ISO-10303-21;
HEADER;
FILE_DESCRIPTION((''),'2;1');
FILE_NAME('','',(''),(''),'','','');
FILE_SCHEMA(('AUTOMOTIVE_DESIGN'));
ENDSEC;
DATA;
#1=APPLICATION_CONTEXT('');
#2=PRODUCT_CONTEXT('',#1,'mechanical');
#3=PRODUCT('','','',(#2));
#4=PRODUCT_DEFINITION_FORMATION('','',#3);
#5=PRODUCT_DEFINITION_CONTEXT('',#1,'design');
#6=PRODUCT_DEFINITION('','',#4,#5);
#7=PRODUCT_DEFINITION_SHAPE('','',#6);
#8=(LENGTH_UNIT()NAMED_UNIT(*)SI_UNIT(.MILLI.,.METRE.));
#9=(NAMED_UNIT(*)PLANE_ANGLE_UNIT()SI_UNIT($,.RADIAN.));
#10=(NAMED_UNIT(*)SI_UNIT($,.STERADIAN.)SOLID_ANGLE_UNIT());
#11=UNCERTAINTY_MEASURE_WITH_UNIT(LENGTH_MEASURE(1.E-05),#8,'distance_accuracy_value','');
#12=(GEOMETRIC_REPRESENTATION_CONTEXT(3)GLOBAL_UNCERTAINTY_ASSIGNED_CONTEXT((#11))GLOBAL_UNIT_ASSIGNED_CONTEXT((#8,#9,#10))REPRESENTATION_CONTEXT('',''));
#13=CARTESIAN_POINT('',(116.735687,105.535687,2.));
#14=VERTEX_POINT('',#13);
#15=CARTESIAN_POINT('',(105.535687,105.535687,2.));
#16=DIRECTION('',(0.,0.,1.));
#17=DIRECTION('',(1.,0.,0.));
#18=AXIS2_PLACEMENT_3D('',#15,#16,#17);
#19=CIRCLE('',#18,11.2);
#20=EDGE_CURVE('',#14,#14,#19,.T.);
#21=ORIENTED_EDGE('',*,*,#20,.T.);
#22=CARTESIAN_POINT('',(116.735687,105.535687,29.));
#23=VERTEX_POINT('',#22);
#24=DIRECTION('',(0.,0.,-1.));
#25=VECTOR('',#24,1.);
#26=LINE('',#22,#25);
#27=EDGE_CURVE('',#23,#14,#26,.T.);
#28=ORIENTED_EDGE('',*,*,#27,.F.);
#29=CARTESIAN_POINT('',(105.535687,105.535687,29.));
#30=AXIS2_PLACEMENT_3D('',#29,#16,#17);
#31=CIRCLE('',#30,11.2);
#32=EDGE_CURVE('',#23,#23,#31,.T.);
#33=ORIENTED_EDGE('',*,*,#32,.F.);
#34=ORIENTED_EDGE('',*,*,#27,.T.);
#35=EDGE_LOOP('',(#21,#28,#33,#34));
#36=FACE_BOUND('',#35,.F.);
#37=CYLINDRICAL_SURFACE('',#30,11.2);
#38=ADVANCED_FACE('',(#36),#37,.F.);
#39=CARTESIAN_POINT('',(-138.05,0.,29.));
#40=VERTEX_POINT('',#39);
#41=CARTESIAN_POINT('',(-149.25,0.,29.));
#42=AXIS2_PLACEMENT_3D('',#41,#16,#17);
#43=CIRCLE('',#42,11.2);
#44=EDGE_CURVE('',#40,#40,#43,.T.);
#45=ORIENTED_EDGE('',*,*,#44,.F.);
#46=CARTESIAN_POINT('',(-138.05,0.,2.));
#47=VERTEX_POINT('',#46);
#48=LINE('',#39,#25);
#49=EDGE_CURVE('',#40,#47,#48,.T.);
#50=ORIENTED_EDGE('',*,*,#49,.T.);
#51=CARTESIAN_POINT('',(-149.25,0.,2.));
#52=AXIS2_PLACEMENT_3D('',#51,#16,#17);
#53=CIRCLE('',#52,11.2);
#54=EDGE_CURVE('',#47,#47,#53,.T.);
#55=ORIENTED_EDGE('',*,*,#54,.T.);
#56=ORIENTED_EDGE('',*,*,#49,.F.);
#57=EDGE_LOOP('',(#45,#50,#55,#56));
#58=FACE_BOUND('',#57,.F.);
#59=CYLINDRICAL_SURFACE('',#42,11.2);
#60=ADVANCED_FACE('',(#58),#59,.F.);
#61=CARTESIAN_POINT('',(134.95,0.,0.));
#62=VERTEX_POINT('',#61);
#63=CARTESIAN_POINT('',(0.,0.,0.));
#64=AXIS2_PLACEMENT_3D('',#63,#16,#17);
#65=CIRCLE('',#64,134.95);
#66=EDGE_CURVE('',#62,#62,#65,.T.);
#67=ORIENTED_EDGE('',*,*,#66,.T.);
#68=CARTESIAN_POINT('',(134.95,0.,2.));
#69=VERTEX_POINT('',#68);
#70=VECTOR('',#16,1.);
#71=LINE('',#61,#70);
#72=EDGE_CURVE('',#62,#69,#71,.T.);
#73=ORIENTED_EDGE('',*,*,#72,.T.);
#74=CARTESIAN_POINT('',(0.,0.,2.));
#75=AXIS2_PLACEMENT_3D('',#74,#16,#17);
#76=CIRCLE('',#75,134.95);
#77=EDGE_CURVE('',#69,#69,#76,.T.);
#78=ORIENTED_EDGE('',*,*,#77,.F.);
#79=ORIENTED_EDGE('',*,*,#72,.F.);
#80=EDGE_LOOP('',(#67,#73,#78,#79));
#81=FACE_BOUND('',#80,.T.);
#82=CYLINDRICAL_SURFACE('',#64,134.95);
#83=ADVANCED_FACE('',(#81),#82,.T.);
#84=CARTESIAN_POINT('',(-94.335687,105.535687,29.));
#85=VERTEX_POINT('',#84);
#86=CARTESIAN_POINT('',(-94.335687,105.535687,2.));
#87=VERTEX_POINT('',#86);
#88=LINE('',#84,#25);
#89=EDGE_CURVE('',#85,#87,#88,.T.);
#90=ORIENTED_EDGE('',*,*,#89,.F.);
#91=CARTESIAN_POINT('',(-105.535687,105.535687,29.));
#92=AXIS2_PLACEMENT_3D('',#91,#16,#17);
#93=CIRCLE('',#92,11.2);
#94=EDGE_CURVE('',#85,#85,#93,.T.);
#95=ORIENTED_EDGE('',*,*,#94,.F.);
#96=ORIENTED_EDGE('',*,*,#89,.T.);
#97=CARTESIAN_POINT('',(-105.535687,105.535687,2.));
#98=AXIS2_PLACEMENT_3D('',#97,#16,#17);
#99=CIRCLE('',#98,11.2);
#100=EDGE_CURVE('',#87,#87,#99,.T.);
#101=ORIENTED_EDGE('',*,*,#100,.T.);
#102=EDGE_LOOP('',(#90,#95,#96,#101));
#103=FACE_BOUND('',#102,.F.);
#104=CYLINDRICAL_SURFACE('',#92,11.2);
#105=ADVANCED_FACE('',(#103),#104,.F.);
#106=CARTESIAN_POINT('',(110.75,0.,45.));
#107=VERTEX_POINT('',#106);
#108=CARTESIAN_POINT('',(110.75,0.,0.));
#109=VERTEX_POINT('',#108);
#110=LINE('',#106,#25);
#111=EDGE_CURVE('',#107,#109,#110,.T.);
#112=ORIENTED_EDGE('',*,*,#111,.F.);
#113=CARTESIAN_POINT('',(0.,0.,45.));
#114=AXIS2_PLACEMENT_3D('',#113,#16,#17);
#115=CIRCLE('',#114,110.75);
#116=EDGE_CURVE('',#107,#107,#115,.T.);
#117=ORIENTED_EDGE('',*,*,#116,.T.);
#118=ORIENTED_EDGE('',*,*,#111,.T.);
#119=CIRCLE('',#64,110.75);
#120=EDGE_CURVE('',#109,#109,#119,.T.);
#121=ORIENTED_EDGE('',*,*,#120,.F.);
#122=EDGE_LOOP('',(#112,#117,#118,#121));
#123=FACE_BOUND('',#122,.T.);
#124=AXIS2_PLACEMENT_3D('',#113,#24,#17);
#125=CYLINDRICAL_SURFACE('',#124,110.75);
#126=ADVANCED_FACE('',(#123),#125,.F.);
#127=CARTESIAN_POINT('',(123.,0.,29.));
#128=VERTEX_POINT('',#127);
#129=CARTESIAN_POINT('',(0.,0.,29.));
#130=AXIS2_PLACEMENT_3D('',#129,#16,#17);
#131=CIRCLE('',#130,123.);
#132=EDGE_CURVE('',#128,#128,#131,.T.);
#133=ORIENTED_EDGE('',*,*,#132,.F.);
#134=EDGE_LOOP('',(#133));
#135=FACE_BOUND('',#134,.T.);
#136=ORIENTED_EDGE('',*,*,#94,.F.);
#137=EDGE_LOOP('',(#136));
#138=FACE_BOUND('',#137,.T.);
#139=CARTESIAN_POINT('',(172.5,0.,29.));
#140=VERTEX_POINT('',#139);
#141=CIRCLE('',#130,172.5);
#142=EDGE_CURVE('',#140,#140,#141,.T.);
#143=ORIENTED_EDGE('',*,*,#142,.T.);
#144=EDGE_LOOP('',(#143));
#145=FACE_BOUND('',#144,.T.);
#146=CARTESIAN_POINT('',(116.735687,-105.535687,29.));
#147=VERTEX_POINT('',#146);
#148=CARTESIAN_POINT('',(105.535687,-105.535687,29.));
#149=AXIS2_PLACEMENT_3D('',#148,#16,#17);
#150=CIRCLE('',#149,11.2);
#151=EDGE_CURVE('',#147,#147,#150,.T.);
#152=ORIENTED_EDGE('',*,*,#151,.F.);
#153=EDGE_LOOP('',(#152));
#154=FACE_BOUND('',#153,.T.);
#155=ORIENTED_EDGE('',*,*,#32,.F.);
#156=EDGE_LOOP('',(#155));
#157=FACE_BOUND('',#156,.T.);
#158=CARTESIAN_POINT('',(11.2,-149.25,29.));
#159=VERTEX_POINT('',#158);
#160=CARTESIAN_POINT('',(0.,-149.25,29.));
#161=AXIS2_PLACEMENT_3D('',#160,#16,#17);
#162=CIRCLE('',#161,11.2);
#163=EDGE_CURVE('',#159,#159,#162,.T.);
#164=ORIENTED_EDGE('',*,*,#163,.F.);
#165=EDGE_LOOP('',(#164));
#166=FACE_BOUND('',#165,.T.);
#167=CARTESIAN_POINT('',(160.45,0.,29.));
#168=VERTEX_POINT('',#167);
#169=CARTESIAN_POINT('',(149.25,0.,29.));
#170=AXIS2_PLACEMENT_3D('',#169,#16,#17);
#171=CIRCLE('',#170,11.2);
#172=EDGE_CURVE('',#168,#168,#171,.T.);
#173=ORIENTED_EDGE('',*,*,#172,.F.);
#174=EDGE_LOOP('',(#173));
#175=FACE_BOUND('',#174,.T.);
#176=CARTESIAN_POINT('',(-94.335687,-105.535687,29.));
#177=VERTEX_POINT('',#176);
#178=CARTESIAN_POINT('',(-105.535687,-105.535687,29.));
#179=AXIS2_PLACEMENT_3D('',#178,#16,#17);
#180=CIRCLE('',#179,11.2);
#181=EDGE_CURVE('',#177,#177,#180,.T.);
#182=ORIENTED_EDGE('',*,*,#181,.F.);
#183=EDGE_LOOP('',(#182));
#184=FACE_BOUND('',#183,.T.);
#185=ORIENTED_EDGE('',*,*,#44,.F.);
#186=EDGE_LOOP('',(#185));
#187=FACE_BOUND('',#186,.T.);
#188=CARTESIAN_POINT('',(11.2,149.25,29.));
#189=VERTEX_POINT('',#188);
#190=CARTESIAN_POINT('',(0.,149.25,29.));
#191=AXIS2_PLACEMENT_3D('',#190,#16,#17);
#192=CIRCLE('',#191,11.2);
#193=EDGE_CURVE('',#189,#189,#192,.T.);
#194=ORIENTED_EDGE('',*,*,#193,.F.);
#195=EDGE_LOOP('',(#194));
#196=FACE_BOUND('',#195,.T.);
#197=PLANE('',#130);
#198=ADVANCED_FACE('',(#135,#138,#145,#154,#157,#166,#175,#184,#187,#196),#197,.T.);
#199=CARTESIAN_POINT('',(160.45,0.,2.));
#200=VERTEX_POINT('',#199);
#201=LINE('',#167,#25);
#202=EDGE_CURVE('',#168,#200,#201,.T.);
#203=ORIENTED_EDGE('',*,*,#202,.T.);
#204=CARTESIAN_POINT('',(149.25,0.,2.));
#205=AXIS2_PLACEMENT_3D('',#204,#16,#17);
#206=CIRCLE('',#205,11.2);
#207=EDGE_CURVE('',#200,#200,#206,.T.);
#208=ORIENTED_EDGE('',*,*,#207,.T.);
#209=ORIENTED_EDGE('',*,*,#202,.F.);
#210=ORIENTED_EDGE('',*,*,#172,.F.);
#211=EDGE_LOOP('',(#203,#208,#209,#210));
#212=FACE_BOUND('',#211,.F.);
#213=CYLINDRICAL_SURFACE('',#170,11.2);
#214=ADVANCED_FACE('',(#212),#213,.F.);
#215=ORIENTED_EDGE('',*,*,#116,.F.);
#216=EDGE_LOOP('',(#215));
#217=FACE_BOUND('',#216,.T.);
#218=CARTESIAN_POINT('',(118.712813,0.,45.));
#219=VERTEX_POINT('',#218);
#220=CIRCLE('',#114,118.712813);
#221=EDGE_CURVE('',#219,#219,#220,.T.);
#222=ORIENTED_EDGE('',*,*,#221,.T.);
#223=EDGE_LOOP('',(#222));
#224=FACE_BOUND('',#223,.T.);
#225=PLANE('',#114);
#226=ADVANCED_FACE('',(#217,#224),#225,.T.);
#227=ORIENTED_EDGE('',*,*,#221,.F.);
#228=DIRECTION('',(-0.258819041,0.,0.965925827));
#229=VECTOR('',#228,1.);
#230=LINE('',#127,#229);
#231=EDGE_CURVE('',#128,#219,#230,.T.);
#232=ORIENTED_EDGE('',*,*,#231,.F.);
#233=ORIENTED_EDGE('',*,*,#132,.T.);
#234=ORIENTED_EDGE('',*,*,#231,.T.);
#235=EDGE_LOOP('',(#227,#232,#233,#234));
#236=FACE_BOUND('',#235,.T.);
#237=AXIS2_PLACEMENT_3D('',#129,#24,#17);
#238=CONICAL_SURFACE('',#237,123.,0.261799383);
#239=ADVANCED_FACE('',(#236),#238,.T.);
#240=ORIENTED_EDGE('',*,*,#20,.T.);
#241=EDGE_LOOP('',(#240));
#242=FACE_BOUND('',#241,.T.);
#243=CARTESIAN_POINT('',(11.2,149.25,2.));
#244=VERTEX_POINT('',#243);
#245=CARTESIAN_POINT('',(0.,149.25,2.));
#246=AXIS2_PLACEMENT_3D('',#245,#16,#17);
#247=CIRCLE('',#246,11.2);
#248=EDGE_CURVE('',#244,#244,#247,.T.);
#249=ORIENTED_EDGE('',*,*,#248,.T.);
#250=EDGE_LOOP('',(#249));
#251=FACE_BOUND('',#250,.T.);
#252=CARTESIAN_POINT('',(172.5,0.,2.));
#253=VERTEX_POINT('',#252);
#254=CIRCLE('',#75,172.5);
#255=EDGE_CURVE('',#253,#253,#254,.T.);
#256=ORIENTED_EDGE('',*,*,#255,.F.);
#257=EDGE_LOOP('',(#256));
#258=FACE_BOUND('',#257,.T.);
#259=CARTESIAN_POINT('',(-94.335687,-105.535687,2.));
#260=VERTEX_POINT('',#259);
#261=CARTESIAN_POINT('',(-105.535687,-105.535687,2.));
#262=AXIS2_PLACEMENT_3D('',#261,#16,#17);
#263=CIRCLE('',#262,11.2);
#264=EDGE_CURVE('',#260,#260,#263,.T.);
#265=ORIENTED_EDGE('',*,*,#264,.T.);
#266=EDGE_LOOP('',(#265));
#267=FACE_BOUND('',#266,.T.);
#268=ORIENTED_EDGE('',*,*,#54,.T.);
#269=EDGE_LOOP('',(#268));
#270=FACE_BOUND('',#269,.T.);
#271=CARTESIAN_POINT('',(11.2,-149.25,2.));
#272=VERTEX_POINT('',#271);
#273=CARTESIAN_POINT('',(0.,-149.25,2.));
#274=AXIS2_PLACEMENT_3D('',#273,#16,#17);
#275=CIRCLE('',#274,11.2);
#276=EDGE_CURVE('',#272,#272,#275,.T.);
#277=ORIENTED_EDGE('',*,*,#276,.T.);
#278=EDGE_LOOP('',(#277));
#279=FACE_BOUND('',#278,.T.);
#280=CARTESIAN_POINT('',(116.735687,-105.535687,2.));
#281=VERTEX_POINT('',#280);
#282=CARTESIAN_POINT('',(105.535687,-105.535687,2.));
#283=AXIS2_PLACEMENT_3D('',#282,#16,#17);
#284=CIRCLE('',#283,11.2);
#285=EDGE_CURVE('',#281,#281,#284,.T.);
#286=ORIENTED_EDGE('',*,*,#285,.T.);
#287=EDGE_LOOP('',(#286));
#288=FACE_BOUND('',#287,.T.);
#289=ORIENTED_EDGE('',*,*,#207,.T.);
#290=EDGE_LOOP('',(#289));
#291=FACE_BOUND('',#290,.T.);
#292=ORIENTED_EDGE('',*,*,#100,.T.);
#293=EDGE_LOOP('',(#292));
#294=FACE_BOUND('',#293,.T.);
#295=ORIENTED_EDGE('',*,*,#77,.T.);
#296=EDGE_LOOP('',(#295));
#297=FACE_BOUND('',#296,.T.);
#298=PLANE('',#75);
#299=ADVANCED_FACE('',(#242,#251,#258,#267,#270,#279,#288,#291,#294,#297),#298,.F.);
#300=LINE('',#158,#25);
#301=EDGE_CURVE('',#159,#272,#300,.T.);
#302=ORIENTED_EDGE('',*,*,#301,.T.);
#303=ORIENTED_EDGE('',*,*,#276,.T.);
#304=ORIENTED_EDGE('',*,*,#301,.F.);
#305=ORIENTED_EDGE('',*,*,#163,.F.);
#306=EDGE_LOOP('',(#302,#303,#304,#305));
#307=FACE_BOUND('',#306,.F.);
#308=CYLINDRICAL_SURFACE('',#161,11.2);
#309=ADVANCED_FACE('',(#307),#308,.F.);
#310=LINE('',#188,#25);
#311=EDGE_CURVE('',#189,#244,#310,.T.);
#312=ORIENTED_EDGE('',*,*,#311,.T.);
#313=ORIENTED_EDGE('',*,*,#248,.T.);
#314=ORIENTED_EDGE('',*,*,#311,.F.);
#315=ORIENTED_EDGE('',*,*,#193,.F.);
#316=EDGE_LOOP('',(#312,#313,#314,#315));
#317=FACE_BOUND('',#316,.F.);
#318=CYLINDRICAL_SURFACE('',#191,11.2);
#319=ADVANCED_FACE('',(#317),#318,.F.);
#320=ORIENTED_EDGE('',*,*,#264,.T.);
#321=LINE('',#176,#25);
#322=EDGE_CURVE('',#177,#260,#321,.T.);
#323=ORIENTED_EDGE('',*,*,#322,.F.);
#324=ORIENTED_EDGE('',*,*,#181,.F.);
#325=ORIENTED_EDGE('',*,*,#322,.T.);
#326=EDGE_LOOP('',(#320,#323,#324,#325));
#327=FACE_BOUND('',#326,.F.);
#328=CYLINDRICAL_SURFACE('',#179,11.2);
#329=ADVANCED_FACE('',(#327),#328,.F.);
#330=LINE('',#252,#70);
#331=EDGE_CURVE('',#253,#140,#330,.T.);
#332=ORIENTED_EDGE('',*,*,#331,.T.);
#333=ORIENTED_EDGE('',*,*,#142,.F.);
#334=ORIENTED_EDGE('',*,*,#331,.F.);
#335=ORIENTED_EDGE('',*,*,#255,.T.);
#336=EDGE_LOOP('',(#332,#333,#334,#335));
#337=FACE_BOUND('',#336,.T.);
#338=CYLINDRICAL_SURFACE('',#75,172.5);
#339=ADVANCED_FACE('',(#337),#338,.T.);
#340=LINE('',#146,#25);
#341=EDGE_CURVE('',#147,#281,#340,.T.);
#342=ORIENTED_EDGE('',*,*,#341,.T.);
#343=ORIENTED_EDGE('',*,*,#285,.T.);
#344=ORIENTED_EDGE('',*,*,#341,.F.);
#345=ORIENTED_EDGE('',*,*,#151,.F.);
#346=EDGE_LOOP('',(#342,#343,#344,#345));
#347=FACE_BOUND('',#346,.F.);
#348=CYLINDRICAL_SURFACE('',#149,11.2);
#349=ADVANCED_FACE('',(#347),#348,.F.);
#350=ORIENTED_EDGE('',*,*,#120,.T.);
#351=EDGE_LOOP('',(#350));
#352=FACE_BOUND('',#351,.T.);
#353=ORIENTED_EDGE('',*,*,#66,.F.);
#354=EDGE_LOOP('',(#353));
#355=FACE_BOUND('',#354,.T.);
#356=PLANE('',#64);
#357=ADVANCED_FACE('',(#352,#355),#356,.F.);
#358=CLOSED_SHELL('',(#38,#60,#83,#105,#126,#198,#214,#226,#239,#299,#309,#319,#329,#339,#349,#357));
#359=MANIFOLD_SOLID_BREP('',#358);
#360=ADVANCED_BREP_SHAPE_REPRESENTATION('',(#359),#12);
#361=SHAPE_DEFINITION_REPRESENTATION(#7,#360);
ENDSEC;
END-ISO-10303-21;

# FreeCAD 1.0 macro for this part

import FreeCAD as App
import Part
import Sketcher
Q = App.Units.Quantity


def add_polygon(sketch, points):
    """Adds a closed chain of lines whose ends are joined by coincident constraints."""
    first, n = sketch.GeometryCount, len(points)
    for a, b in zip(points, points[1:] + points[:1]):
        sketch.addGeometry(Part.LineSegment(App.Vector(*a, 0), App.Vector(*b, 0)), False)
    for i in range(n):
        sketch.addConstraint(Sketcher.Constraint("Coincident", first + i, 2, first + (i + 1) % n, 1))

doc = App.newDocument("Part")
body = doc.addObject("PartDesign::Body", "Body")

# Sketch on XZ plane
sketch1 = doc.addObject("Sketcher::SketchObject", "Sketch")
body.addObject(sketch1)
sketch1.AttachmentSupport = (doc.XZ_Plane, [""])
sketch1.MapMode = "FlatFace"
add_polygon(sketch1, [(110.8, 45), (110.8, 0), (134.9, 0), (134.9, 2), (172.5, 2), (172.5, 29), (123, 29), (118.7, 45)])  # lines 0-7
sketch1.addConstraint([
    Sketcher.Constraint("Vertical", 0),
    Sketcher.Constraint("Horizontal", 1),
    Sketcher.Constraint("Vertical", 2),
    Sketcher.Constraint("Horizontal", 3),
    Sketcher.Constraint("Vertical", 4),
    Sketcher.Constraint("Horizontal", 5),
    Sketcher.Constraint("Horizontal", 7),
    Sketcher.Constraint("PointOnObject", 0, 2, -1),
    Sketcher.Constraint("DistanceY", 0, 2, 0, 1, 45.0),
    Sketcher.Constraint("DistanceY", 2, 1, 2, 2, 2.0),
    Sketcher.Constraint("DistanceY", 4, 1, 4, 2, 27.0),
    Sketcher.Constraint("Angle", 6, Q("105 deg")),
    Sketcher.Constraint("DistanceX", 1, 1, 1, 2, 24.2),
    Sketcher.Constraint("DistanceX", 5, 2, 5, 1, 49.5),
    Sketcher.Constraint("DistanceX", -1, 1, 5, 2, 123.0),
    Sketcher.Constraint("DistanceX", 3, 1, 3, 2, 37.55),
])
revolution = doc.addObject("PartDesign::Revolution", "Revolution")
body.addObject(revolution)
revolution.Profile = sketch1
revolution.ReferenceAxis = (sketch1, ["V_Axis"])
revolution.Angle = 360

# Sketch on XY plane
sketch2 = doc.addObject("Sketcher::SketchObject", "Sketch001")
body.addObject(sketch2)
sketch2.AttachmentSupport = (doc.XY_Plane, [""])
sketch2.MapMode = "FlatFace"
sketch2.AttachmentOffset = App.Placement(App.Vector(0, 0, 29), App.Rotation())
sketch2.addGeometry([
    Part.Circle(App.Vector(0, 149, 0), App.Vector(0, 0, 1), 11),  # 0
    Part.Circle(App.Vector(-106, 106, 0), App.Vector(0, 0, 1), 11),  # 1
    Part.Circle(App.Vector(-149, 0, 0), App.Vector(0, 0, 1), 11),  # 2
    Part.Circle(App.Vector(-106, -106, 0), App.Vector(0, 0, 1), 11),  # 3
    Part.Circle(App.Vector(0, -149, 0), App.Vector(0, 0, 1), 11),  # 4
    Part.Circle(App.Vector(106, -106, 0), App.Vector(0, 0, 1), 11),  # 5
    Part.Circle(App.Vector(149, 0, 0), App.Vector(0, 0, 1), 11),  # 6
    Part.Circle(App.Vector(106, 106, 0), App.Vector(0, 0, 1), 11),  # 7
], False)
sketch2.addConstraint([
    Sketcher.Constraint("Equal", 0, 1),
    Sketcher.Constraint("Equal", 1, 2),
    Sketcher.Constraint("Equal", 2, 3),
    Sketcher.Constraint("Equal", 3, 4),
    Sketcher.Constraint("Equal", 4, 5),
    Sketcher.Constraint("Equal", 5, 6),
    Sketcher.Constraint("Equal", 6, 7),
    Sketcher.Constraint("Symmetric", 0, 3, 4, 3, -1, 1),
    Sketcher.Constraint("Symmetric", 1, 3, 5, 3, -1, 1),
    Sketcher.Constraint("Symmetric", 2, 3, 6, 3, -1, 1),
    Sketcher.Constraint("Symmetric", 3, 3, 7, 3, -1, 1),
    Sketcher.Constraint("Symmetric", 3, 3, 5, 3, -2),
    Sketcher.Constraint("PointOnObject", 0, 3, -2),
    Sketcher.Constraint("PointOnObject", 2, 3, -1),
    Sketcher.Constraint("Diameter", 0, 22.4),
    Sketcher.Constraint("DistanceY", 4, 3, 0, 3, 298.5),
    Sketcher.Constraint("DistanceX", 2, 3, -1, 1, 149.25),
    Sketcher.Constraint("DistanceX", 1, 3, -1, 1, 105.535687),
    Sketcher.Constraint("DistanceY", -1, 1, 1, 3, 105.535687),
])
pocket1 = doc.addObject("PartDesign::Pocket", "Pocket")
body.addObject(pocket1)
pocket1.Profile = sketch2
pocket1.Type = "ThroughAll"

doc.recompute()
